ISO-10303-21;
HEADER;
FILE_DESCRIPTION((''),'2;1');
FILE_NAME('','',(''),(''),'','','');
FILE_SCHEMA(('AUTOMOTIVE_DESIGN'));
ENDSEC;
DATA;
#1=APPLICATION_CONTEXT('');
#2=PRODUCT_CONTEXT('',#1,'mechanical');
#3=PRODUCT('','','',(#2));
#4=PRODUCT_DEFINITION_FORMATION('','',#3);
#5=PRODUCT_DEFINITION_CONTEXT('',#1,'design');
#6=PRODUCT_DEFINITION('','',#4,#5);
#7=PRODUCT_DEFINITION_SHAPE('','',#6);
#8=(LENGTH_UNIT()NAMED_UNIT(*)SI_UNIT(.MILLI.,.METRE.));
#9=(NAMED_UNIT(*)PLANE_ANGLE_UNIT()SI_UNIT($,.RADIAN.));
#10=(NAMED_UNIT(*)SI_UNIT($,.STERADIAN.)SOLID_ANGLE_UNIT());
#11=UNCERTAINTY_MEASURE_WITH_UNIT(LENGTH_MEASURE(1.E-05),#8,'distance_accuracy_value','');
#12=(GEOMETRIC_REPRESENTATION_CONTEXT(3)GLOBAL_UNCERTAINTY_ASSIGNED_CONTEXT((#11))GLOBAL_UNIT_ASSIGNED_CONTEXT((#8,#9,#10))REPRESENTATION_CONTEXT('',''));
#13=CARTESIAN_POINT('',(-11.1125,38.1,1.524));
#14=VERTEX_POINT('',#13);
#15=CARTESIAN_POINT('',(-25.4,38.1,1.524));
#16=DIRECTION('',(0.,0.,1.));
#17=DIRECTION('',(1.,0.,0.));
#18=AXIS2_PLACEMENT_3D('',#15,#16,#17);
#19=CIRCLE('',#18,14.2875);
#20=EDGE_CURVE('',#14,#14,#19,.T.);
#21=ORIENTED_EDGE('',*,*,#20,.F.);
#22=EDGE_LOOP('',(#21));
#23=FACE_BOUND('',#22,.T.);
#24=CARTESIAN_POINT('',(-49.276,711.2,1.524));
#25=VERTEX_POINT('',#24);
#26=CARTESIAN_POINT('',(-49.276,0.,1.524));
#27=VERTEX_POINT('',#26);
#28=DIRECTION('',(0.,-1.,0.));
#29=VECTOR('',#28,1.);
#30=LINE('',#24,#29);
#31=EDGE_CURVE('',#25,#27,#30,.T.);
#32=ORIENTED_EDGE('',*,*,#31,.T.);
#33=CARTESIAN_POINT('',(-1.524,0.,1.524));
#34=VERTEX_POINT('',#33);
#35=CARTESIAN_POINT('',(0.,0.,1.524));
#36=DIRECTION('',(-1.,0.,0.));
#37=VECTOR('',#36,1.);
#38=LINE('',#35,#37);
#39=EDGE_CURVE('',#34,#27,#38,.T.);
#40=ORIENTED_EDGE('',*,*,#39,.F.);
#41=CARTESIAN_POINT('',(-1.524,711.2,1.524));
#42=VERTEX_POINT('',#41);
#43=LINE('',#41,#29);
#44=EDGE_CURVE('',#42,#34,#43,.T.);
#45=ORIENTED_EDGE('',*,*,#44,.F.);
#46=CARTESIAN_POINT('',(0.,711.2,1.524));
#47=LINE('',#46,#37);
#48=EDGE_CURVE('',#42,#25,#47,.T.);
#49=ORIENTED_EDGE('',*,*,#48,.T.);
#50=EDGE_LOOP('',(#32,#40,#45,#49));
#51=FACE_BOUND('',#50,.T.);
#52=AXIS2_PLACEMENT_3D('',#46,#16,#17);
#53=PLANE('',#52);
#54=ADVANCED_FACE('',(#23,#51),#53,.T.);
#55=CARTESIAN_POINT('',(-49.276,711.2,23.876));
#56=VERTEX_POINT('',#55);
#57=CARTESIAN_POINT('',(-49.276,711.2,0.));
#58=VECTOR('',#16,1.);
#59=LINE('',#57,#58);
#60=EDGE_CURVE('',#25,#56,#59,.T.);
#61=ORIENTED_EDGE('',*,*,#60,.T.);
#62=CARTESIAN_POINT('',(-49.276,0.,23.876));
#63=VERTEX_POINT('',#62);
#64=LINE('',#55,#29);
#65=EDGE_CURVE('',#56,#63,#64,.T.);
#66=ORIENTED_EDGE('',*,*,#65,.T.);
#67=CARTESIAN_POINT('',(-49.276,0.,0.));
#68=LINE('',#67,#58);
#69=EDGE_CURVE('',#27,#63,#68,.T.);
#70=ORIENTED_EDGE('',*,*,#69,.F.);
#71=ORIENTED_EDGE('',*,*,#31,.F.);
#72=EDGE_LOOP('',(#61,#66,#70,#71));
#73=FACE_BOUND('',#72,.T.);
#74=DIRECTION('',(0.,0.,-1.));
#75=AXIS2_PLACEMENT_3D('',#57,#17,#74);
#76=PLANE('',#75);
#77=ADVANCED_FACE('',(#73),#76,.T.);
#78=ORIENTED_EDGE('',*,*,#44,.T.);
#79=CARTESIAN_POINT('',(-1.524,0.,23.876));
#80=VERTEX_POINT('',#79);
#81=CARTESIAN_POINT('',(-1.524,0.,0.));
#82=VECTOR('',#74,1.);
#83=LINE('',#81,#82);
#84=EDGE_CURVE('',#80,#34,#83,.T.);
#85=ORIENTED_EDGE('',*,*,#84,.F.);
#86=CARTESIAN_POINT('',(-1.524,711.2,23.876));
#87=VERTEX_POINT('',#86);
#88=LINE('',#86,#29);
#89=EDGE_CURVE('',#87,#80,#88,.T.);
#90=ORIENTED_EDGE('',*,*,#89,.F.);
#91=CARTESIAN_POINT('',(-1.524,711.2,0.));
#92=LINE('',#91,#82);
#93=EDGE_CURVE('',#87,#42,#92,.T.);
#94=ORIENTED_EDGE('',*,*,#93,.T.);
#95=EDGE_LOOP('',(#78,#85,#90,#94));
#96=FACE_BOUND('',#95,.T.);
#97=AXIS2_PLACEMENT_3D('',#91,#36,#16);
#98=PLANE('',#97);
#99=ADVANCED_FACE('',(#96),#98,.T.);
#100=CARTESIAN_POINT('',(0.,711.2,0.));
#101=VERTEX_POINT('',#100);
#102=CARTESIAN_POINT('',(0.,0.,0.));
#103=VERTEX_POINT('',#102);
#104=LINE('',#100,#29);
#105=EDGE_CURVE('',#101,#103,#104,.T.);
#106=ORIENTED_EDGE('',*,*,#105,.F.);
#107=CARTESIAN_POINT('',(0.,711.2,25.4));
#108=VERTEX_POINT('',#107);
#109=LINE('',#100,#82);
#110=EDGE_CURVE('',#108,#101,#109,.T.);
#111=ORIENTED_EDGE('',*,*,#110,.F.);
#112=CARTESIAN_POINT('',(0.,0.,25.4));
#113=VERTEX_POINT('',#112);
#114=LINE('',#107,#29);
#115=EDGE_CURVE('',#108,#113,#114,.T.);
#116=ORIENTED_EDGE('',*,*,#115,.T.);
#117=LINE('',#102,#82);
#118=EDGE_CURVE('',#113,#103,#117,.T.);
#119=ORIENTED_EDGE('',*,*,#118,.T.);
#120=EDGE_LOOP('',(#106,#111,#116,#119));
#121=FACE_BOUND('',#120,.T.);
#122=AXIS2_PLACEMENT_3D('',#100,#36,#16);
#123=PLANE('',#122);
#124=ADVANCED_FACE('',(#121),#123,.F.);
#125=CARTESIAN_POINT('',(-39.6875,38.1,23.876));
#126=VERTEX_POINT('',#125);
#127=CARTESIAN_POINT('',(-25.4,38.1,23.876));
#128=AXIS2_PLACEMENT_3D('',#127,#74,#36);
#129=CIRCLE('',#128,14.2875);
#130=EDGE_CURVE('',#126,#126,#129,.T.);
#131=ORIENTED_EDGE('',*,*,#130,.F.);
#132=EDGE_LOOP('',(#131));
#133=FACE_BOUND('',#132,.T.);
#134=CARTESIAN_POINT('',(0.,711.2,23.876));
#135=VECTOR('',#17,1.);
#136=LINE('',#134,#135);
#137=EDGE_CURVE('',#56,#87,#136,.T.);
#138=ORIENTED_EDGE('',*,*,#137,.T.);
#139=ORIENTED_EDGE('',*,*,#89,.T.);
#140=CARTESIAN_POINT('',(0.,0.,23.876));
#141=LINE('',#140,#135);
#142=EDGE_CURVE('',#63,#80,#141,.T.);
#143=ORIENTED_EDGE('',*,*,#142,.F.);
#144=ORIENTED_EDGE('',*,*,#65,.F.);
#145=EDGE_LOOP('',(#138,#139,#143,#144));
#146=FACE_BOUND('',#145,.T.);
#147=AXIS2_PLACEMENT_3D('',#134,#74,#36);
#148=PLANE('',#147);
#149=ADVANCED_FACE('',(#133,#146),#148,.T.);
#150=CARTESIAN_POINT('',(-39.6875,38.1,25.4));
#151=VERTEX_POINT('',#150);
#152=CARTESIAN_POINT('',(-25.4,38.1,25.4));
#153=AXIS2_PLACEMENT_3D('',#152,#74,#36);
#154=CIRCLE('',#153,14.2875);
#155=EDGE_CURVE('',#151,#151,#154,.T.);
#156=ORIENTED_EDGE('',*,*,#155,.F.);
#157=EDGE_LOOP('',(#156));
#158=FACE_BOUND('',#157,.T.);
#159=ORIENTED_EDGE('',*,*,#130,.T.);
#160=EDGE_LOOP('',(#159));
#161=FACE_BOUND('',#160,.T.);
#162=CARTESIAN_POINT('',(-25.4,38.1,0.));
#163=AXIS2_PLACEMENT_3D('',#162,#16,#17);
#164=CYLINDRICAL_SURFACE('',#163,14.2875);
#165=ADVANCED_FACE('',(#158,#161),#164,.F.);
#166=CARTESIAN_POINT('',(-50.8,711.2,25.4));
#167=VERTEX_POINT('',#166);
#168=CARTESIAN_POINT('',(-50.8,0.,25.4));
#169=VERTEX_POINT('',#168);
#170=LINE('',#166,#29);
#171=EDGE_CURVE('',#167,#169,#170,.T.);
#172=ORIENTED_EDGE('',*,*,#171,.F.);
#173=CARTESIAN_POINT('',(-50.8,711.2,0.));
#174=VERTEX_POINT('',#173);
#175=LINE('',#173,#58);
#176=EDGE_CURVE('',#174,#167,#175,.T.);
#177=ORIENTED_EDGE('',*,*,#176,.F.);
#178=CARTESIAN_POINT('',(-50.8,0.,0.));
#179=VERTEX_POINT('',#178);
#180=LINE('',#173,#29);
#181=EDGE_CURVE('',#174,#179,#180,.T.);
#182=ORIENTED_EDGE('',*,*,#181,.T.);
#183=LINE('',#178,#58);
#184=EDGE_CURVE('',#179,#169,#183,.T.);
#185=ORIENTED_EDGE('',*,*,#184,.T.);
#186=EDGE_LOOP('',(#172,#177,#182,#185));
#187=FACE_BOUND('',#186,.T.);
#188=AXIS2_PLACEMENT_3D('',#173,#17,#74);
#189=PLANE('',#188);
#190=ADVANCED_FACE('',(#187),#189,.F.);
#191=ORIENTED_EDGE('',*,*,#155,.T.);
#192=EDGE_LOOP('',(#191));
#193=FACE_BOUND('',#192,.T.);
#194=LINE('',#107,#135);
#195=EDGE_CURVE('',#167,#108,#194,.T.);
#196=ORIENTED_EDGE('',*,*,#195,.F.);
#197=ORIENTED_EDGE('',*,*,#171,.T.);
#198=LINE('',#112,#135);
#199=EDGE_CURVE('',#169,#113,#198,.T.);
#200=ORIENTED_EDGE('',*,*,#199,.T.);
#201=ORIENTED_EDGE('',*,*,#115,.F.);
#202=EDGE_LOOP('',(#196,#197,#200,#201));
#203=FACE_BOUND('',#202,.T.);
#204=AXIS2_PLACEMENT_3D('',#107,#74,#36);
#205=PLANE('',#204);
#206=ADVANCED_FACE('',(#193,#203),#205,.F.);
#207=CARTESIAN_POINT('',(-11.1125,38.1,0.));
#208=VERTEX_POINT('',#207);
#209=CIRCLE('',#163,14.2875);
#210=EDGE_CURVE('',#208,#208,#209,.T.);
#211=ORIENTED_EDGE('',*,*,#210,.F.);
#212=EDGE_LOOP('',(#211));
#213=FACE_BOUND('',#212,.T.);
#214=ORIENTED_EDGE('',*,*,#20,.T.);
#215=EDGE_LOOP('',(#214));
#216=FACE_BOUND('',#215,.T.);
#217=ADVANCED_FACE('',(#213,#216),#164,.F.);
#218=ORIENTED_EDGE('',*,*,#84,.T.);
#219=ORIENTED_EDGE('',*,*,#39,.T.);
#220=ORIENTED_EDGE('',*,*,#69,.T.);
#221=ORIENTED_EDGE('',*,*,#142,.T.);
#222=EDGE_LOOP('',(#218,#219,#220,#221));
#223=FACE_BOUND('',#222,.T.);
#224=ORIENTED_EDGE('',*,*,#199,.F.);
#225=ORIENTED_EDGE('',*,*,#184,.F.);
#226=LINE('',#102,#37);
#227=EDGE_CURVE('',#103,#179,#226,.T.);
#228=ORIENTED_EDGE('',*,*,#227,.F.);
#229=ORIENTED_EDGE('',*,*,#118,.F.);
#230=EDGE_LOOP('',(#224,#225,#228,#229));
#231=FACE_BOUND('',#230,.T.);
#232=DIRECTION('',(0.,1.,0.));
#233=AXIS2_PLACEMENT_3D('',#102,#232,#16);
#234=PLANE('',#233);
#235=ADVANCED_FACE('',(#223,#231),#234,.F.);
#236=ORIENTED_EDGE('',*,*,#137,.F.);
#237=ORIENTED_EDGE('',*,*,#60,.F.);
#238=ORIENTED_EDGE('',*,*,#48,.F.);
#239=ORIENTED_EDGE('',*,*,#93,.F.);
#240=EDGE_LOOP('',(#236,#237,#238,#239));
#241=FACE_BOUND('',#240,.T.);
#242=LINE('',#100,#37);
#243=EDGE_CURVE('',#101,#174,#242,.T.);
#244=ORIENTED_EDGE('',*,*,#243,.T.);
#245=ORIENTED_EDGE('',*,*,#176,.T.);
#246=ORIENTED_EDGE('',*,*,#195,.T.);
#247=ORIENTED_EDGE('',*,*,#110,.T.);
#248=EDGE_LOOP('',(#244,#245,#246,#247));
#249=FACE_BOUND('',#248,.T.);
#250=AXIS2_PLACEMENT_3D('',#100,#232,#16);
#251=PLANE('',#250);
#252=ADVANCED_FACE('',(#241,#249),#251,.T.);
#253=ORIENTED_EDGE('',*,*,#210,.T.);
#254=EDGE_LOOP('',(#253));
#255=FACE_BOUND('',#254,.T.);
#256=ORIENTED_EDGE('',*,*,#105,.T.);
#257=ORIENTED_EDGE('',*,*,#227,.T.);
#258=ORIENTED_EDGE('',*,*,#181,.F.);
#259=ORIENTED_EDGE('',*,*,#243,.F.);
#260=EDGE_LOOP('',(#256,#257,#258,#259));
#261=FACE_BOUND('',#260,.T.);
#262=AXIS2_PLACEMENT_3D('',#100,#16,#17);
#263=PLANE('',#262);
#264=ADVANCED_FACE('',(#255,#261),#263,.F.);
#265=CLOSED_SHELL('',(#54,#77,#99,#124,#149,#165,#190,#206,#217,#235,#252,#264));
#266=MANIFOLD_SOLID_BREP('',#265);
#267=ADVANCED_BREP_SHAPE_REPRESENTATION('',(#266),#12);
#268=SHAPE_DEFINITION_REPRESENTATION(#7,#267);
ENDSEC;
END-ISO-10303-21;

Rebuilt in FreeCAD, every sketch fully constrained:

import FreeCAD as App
import Part
import Sketcher
Q = App.Units.Quantity


def add_polygon(sketch, points):
    """Adds a closed chain of lines whose ends are joined by coincident constraints."""
    first, n = sketch.GeometryCount, len(points)
    for a, b in zip(points, points[1:] + points[:1]):
        sketch.addGeometry(Part.LineSegment(App.Vector(*a, 0), App.Vector(*b, 0)), False)
    for i in range(n):
        sketch.addConstraint(Sketcher.Constraint("Coincident", first + i, 2, first + (i + 1) % n, 1))

doc = App.newDocument("Part")
body = doc.addObject("PartDesign::Body", "Body")

sketch1 = doc.addObject("Sketcher::SketchObject", "Sketch")
body.addObject(sketch1)
sketch1.AttachmentSupport = (doc.XZ_Plane, [""])
sketch1.MapMode = "FlatFace"
add_polygon(sketch1, [(-51, 0), (-51, 25), (0, 25), (0, 0)])
add_polygon(sketch1, [(-2, 24), (-49, 24), (-49, 2), (-2, 2)])
sketch1.addConstraint(Sketcher.Constraint("Vertical", 0))
sketch1.addConstraint(Sketcher.Constraint("Horizontal", 1))
sketch1.addConstraint(Sketcher.Constraint("Vertical", 2))
sketch1.addConstraint(Sketcher.Constraint("Horizontal", 3))
sketch1.addConstraint(Sketcher.Constraint("Horizontal", 4))
sketch1.addConstraint(Sketcher.Constraint("Vertical", 5))
sketch1.addConstraint(Sketcher.Constraint("Horizontal", 6))
sketch1.addConstraint(Sketcher.Constraint("Vertical", 7))
sketch1.addConstraint(Sketcher.Constraint("Coincident", 2, 2, -1, 1))
sketch1.addConstraint(Sketcher.Constraint("DistanceX", 1, 1, 1, 2, Q("2 in")))
sketch1.addConstraint(Sketcher.Constraint("DistanceY", 0, 1, 0, 2, Q("1 in")))
sketch1.addConstraint(Sketcher.Constraint("DistanceX", 4, 2, 4, 1, Q("1.88 in")))
sketch1.addConstraint(Sketcher.Constraint("DistanceY", 5, 2, 5, 1, Q("0.88 in")))
sketch1.addConstraint(Sketcher.Constraint("DistanceX", 4, 2, -1, 1, Q("1.94 in")))
sketch1.addConstraint(Sketcher.Constraint("DistanceY", -1, 1, 4, 2, Q("0.94 in")))
pad1 = doc.addObject("PartDesign::Pad", "Pad")
body.addObject(pad1)
pad1.Profile = sketch1
pad1.Length = Q("28 in")
pad1.Reversed = True

sketch2 = doc.addObject("Sketcher::SketchObject", "Sketch001")
body.addObject(sketch2)
sketch2.AttachmentSupport = (doc.XY_Plane, [""])
sketch2.MapMode = "FlatFace"
sketch2.AttachmentOffset = App.Placement(App.Vector(0, 0, 1 * 25.4), App.Rotation())
sketch2.addGeometry(Part.Circle(App.Vector(-25, 38, 0), App.Vector(0, 0, 1), 14), False)
sketch2.addConstraint(Sketcher.Constraint("Diameter", 0, Q("1.125 in")))
sketch2.addConstraint(Sketcher.Constraint("DistanceX", 0, 3, -1, 1, Q("1 in")))
sketch2.addConstraint(Sketcher.Constraint("DistanceY", -1, 1, 0, 3, Q("1.5 in")))
pocket1 = doc.addObject("PartDesign::Pocket", "Pocket")
body.addObject(pocket1)
pocket1.Profile = sketch2
pocket1.Type = "ThroughAll"
pocket1.Midplane = True

doc.recompute()
